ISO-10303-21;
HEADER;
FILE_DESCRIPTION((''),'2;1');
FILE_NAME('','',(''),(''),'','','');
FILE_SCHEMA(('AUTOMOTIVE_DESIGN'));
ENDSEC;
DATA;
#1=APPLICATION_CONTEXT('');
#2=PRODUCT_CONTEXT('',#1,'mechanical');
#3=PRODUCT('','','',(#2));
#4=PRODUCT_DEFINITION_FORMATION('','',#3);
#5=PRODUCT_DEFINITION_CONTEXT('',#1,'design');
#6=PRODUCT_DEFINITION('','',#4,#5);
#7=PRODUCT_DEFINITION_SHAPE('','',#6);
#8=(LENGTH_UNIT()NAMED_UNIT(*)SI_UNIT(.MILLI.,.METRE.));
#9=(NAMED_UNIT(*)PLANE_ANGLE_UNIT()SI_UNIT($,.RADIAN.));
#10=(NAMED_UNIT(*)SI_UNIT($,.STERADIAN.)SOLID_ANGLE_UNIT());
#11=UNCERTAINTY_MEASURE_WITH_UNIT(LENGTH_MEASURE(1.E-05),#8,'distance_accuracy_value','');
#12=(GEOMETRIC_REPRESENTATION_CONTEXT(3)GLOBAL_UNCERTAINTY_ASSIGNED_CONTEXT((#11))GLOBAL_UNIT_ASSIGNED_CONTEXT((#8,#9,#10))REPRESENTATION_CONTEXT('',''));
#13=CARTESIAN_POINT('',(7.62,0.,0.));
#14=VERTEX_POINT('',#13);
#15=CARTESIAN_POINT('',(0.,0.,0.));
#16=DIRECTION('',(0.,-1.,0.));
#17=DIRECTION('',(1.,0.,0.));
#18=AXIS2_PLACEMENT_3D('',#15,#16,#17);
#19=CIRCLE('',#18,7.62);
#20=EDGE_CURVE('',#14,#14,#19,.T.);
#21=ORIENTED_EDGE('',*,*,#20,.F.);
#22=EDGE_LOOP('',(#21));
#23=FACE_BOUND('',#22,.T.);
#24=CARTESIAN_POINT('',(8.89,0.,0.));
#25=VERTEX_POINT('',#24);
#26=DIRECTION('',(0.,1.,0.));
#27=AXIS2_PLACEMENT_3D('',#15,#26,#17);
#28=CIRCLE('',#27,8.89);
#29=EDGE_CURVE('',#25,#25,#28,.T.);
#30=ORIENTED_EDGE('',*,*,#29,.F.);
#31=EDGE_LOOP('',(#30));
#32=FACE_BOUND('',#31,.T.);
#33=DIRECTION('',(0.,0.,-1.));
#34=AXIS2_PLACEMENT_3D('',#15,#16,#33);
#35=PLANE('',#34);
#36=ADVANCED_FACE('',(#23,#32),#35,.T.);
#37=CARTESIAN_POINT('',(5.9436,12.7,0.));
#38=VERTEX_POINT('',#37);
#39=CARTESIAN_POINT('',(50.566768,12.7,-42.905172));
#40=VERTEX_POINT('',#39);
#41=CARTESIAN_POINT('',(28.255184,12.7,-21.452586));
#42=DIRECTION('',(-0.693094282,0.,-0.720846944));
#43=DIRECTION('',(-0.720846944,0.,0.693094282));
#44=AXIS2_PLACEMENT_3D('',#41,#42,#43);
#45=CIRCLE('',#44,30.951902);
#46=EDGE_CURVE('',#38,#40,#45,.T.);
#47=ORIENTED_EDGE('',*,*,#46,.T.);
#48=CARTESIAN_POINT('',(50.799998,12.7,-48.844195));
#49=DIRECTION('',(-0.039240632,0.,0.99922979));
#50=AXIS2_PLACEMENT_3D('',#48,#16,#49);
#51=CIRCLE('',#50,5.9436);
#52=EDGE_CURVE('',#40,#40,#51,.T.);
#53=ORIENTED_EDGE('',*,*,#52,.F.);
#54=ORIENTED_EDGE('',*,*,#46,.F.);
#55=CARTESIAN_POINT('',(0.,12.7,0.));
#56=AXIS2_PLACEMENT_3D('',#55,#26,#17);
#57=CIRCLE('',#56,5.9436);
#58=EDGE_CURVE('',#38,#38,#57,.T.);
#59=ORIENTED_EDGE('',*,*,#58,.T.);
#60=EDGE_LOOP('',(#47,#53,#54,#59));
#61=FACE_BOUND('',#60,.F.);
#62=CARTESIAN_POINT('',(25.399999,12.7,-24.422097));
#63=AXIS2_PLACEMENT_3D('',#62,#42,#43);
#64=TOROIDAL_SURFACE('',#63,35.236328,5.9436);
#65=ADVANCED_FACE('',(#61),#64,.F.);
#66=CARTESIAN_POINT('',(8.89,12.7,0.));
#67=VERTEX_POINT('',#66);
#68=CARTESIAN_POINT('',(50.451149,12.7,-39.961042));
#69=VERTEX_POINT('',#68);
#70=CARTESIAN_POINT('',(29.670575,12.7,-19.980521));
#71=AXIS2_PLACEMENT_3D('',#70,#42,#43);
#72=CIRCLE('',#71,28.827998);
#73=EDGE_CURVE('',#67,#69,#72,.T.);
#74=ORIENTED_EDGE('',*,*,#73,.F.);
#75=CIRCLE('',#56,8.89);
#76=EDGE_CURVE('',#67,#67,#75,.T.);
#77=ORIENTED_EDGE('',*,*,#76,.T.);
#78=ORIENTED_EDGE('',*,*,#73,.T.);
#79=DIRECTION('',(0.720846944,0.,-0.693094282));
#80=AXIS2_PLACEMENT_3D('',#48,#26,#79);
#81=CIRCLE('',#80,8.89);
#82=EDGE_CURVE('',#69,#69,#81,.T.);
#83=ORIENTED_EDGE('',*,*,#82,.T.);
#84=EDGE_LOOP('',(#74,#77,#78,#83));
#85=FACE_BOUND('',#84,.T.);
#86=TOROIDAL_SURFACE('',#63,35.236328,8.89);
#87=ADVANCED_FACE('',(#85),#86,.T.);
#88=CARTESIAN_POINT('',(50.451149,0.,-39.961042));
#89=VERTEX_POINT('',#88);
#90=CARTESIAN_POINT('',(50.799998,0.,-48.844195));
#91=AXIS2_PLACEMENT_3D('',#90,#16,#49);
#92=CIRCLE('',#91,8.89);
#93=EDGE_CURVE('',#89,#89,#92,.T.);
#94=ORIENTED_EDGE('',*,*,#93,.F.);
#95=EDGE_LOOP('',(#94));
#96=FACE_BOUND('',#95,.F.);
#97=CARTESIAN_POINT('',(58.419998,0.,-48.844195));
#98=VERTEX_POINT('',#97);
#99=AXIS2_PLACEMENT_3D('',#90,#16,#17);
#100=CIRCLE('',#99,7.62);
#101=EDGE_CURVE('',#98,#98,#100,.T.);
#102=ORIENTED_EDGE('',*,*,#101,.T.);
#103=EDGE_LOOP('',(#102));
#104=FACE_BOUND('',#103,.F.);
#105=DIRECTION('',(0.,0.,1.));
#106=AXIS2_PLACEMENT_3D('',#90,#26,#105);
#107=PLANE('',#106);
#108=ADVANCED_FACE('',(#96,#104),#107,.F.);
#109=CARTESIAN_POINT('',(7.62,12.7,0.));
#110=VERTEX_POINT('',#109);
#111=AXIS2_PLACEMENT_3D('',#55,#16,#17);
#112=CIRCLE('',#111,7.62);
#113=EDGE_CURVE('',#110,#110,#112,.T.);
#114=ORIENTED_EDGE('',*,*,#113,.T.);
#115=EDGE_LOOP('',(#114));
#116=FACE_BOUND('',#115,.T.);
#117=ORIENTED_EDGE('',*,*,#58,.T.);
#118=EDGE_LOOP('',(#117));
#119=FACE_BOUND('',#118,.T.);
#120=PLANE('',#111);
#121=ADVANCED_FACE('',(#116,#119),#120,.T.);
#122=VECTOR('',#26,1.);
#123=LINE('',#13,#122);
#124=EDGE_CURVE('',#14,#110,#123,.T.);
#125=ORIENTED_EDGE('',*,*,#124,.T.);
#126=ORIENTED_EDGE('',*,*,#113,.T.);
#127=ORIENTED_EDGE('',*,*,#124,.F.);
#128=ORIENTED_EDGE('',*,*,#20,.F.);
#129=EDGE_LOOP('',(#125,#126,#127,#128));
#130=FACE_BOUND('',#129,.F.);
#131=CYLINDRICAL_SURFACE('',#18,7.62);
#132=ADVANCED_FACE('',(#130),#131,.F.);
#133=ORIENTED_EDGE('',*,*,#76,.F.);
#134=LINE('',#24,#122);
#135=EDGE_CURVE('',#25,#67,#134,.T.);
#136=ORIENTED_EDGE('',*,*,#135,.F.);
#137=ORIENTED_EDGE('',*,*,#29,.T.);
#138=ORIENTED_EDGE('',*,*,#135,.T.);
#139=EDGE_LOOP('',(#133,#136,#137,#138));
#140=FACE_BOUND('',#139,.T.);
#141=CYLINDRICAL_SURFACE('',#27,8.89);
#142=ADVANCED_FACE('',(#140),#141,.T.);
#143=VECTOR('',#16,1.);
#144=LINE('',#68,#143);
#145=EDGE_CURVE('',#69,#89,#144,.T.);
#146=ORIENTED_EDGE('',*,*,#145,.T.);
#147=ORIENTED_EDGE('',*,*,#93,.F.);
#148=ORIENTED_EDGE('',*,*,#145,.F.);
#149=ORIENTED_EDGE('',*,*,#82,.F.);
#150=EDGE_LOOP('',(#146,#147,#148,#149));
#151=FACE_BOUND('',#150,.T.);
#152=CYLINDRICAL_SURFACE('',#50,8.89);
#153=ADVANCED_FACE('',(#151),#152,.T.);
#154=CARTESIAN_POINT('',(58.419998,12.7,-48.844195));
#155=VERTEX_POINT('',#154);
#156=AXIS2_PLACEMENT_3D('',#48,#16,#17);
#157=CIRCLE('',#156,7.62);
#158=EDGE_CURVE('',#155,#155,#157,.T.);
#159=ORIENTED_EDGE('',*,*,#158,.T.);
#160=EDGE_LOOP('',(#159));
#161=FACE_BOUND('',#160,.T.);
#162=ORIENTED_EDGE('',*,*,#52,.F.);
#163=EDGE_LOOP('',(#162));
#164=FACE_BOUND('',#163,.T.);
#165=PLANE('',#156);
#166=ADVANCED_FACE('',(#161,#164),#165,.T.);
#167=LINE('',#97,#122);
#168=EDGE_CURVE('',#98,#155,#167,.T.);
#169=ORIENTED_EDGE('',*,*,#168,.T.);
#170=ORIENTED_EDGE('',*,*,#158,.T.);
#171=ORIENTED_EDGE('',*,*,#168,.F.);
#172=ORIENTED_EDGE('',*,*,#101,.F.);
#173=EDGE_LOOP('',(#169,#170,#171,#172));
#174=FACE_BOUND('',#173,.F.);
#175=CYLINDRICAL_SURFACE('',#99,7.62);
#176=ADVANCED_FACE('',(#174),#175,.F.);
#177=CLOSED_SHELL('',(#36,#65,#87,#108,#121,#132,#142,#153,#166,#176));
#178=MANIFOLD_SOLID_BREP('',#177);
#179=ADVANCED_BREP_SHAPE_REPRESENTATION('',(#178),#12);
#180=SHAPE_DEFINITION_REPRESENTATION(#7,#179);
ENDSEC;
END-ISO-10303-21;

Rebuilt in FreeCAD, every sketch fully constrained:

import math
import FreeCAD as App
import Part
import Sketcher
Q = App.Units.Quantity

doc = App.newDocument("Part")
body = doc.addObject("PartDesign::Body", "Body")

sketch1 = body.newObject("Sketcher::SketchObject", "Sketch")
sketch1.AttachmentSupport = (doc.getObject("XZ_Plane"), [""])
sketch1.MapMode = "FlatFace"
sketch1.addGeometry([
    Part.Circle(App.Vector(0, 0, 0), App.Vector(0, 0, 1), 9),
    Part.Circle(App.Vector(0, 0, 0), App.Vector(0, 0, 1), 6),
], False)
sketch1.addConstraint([
    Sketcher.Constraint("Coincident", 0, 3, -1, 1),
    Sketcher.Constraint("Coincident", 1, 3, -1, 1),
    Sketcher.Constraint("Diameter", 0, Q("0.7 in")),
    Sketcher.Constraint("Diameter", 1, Q("0.468 in")),
])

sketch2 = body.newObject("Sketcher::SketchObject", "Sketch001")
sketch2.Placement = App.Placement(App.Vector(0, 0, 0), App.Rotation(App.Vector(-0.720846944, 0, 0.693094282), App.Vector(0, 1, 0), App.Vector(-0.693094282, 0, -0.720846944), "ZXY"))
sketch2.addGeometry([
    Part.LineSegment(App.Vector(0, 0, 0), App.Vector(0, 13, 0)),
    Part.ArcOfCircle(Part.Circle(App.Vector(-35, 13, 0), App.Vector(0, 0, 1), 35), math.radians(0), math.radians(180)),
    Part.LineSegment(App.Vector(-70, 13, 0), App.Vector(-70, 0, 0)),
], False)
sketch2.addConstraint([
    Sketcher.Constraint("Tangent", 0, 2, 1, 1),
    Sketcher.Constraint("Tangent", 1, 2, 2, 1),
    Sketcher.Constraint("Vertical", 0),
    Sketcher.Constraint("Vertical", 2),
    Sketcher.Constraint("Coincident", 0, 1, -1, 1),
    Sketcher.Constraint("PointOnObject", 2, 2, -1),
    Sketcher.Constraint("DistanceY", 0, 1, 0, 2, Q("0.5 in")),
    Sketcher.Constraint("Radius", 1, 35.236328),
])
doc.recompute()

additivepipe = body.newObject("PartDesign::AdditivePipe", "AdditivePipe")
additivepipe.Profile = sketch1
additivepipe.Spine = (sketch2, ["Edge1", "Edge2", "Edge3"])

sketch3 = body.newObject("Sketcher::SketchObject", "Sketch002")
sketch3.AttachmentSupport = (doc.getObject("XZ_Plane"), [""])
sketch3.MapMode = "FlatFace"
sketch3.addGeometry([
    Part.Circle(App.Vector(0, 0, 0), App.Vector(0, 0, 1), 8),
    Part.Circle(App.Vector(0, 0, 0), App.Vector(0, 0, 1), 6),
], False)
sketch3.addConstraint([
    Sketcher.Constraint("Coincident", 0, 3, -1, 1),
    Sketcher.Constraint("Coincident", 1, 3, -1, 1),
    Sketcher.Constraint("Diameter", 0, Q("0.6 in")),
    Sketcher.Constraint("Diameter", 1, Q("0.468 in")),
])
pocket1 = body.newObject("PartDesign::Pocket", "Pocket")
pocket1.Profile = sketch3
pocket1.Length = Q("0.5 in")

sketch4 = body.newObject("Sketcher::SketchObject", "Sketch003")
sketch4.AttachmentSupport = (doc.getObject("XZ_Plane"), [""])
sketch4.MapMode = "FlatFace"
sketch4.addGeometry([
    Part.Circle(App.Vector(51, -49, 0), App.Vector(0, 0, 1), 8),
    Part.Circle(App.Vector(51, -49, 0), App.Vector(0, 0, 1), 6),
], False)
sketch4.addConstraint([
    Sketcher.Constraint("Coincident", 1, 3, 0, 3),
    Sketcher.Constraint("Diameter", 0, Q("0.6 in")),
    Sketcher.Constraint("Diameter", 1, Q("0.468 in")),
    Sketcher.Constraint("DistanceX", -1, 1, 0, 3, Q("1.9999999 in")),
    Sketcher.Constraint("DistanceY", 0, 3, -1, 1, 48.844195),
])
pocket2 = body.newObject("PartDesign::Pocket", "Pocket001")
pocket2.Profile = sketch4
pocket2.Length = Q("0.5 in")

doc.recompute()
